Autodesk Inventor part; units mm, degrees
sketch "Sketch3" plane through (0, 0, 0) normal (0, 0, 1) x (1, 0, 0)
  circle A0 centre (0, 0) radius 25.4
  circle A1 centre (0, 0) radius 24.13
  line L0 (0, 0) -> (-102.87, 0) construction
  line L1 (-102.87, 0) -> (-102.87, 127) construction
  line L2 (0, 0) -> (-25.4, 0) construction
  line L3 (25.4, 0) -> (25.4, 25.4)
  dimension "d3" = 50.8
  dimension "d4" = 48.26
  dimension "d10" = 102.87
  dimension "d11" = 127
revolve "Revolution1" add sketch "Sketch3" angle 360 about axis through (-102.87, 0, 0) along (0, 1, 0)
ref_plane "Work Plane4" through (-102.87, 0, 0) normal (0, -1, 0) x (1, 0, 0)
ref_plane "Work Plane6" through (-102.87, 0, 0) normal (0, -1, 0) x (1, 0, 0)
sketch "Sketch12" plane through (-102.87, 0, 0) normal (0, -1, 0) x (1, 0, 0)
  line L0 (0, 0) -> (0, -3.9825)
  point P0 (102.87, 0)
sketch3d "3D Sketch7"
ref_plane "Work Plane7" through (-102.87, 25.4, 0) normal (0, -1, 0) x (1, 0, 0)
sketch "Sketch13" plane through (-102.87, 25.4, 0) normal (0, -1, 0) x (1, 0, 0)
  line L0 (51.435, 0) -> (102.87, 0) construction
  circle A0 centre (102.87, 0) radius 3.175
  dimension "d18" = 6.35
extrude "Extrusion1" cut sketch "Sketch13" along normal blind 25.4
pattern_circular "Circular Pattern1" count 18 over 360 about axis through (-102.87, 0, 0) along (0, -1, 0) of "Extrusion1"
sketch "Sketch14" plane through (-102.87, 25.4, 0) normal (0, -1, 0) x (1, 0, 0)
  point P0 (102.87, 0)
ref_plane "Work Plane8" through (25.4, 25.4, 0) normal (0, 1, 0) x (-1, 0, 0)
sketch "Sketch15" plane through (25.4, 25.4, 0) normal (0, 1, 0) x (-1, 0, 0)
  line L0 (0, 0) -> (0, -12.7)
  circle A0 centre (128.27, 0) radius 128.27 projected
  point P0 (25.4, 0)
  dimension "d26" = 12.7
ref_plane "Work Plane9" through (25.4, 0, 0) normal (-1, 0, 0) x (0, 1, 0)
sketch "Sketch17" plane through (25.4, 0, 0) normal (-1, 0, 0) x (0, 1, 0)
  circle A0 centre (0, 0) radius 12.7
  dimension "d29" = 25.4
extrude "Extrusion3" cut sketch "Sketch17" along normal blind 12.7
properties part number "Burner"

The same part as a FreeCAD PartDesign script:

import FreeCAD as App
import Part
import Sketcher
from FreeCAD import Vector
Q = App.Units.Quantity

doc = App.newDocument("Part")
body = doc.addObject("PartDesign::Body", "Body")

sketch1 = doc.addObject("Sketcher::SketchObject", "Sketch")
body.addObject(sketch1)
sketch1.AttachmentSupport = (doc.XY_Plane, [""])
sketch1.MapMode = "FlatFace"
sketch1.addGeometry([
    Part.Circle(Vector(0, 0, 0), Vector(0, 0, 1), 25),
    Part.Circle(Vector(0, 0, 0), Vector(0, 0, 1), 24),
], False)
sketch1.addGeometry(Part.LineSegment(Vector(-103, 0, 0), Vector(-103, 10, 0)), True)
sketch1.addConstraint([
    Sketcher.Constraint("Vertical", 2),
    Sketcher.Constraint("Coincident", 0, 3, -1, 1),
    Sketcher.Constraint("Coincident", 1, 3, -1, 1),
    Sketcher.Constraint("PointOnObject", 2, 1, -1),
    Sketcher.Constraint("Diameter", 0, Q("2 in")),
    Sketcher.Constraint("Diameter", 1, Q("1.9 in")),
    Sketcher.Constraint("DistanceX", 2, 1, -1, 1, Q("4.05 in")),
    Sketcher.Constraint("DistanceY", 2, 1, 2, 2, Q("0.3937 in")),
])
revolution = doc.addObject("PartDesign::Revolution", "Revolution")
body.addObject(revolution)
revolution.Profile = sketch1
revolution.ReferenceAxis = (sketch1, ["Axis0"])
revolution.Angle = 360

sketch2 = doc.addObject("Sketcher::SketchObject", "Sketch001")
body.addObject(sketch2)
sketch2.AttachmentSupport = (doc.XZ_Plane, [""])
sketch2.MapMode = "FlatFace"
sketch2.AttachmentOffset = App.Placement(Vector(0, 0, -1 * 25.4), App.Rotation())
sketch2.addGeometry(Part.Circle(Vector(0, 0, 0), Vector(0, 0, 1), 3.2), False)
sketch2.addConstraint([
    Sketcher.Constraint("Coincident", 0, 3, -1, 1),
    Sketcher.Constraint("Diameter", 0, Q("0.25 in")),
])
pocket1 = doc.addObject("PartDesign::Pocket", "Pocket")
body.addObject(pocket1)
pocket1.Profile = sketch2
pocket1.Length = Q("1 in")
pocket1.Reversed = True
doc.recompute()

datumline = doc.addObject("PartDesign::Line", "DatumLine")
body.addObject(datumline)
datumline.Placement = App.Placement(Vector(-102.87, 0, 0), App.Rotation(Vector(0, 0, 1), Vector(0, 1, 0)))
polarpattern = doc.addObject("PartDesign::PolarPattern", "PolarPattern")
body.addObject(polarpattern)
polarpattern.Originals = [pocket1]
polarpattern.Axis = (datumline, [""])
polarpattern.Angle = 360
polarpattern.Occurrences = 18
body.Tip = polarpattern

sketch3 = doc.addObject("Sketcher::SketchObject", "Sketch002")
body.addObject(sketch3)
sketch3.AttachmentSupport = (doc.YZ_Plane, [""])
sketch3.MapMode = "FlatFace"
sketch3.AttachmentOffset = App.Placement(Vector(0, 0, 1 * 25.4), App.Rotation())
sketch3.addGeometry(Part.Circle(Vector(0, 0, 0), Vector(0, 0, 1), 13), False)
sketch3.addConstraint([
    Sketcher.Constraint("Coincident", 0, 3, -1, 1),
    Sketcher.Constraint("Diameter", 0, Q("1 in")),
])
pocket2 = doc.addObject("PartDesign::Pocket", "Pocket001")
body.addObject(pocket2)
pocket2.Profile = sketch3
pocket2.Length = Q("0.5 in")

doc.recompute()
